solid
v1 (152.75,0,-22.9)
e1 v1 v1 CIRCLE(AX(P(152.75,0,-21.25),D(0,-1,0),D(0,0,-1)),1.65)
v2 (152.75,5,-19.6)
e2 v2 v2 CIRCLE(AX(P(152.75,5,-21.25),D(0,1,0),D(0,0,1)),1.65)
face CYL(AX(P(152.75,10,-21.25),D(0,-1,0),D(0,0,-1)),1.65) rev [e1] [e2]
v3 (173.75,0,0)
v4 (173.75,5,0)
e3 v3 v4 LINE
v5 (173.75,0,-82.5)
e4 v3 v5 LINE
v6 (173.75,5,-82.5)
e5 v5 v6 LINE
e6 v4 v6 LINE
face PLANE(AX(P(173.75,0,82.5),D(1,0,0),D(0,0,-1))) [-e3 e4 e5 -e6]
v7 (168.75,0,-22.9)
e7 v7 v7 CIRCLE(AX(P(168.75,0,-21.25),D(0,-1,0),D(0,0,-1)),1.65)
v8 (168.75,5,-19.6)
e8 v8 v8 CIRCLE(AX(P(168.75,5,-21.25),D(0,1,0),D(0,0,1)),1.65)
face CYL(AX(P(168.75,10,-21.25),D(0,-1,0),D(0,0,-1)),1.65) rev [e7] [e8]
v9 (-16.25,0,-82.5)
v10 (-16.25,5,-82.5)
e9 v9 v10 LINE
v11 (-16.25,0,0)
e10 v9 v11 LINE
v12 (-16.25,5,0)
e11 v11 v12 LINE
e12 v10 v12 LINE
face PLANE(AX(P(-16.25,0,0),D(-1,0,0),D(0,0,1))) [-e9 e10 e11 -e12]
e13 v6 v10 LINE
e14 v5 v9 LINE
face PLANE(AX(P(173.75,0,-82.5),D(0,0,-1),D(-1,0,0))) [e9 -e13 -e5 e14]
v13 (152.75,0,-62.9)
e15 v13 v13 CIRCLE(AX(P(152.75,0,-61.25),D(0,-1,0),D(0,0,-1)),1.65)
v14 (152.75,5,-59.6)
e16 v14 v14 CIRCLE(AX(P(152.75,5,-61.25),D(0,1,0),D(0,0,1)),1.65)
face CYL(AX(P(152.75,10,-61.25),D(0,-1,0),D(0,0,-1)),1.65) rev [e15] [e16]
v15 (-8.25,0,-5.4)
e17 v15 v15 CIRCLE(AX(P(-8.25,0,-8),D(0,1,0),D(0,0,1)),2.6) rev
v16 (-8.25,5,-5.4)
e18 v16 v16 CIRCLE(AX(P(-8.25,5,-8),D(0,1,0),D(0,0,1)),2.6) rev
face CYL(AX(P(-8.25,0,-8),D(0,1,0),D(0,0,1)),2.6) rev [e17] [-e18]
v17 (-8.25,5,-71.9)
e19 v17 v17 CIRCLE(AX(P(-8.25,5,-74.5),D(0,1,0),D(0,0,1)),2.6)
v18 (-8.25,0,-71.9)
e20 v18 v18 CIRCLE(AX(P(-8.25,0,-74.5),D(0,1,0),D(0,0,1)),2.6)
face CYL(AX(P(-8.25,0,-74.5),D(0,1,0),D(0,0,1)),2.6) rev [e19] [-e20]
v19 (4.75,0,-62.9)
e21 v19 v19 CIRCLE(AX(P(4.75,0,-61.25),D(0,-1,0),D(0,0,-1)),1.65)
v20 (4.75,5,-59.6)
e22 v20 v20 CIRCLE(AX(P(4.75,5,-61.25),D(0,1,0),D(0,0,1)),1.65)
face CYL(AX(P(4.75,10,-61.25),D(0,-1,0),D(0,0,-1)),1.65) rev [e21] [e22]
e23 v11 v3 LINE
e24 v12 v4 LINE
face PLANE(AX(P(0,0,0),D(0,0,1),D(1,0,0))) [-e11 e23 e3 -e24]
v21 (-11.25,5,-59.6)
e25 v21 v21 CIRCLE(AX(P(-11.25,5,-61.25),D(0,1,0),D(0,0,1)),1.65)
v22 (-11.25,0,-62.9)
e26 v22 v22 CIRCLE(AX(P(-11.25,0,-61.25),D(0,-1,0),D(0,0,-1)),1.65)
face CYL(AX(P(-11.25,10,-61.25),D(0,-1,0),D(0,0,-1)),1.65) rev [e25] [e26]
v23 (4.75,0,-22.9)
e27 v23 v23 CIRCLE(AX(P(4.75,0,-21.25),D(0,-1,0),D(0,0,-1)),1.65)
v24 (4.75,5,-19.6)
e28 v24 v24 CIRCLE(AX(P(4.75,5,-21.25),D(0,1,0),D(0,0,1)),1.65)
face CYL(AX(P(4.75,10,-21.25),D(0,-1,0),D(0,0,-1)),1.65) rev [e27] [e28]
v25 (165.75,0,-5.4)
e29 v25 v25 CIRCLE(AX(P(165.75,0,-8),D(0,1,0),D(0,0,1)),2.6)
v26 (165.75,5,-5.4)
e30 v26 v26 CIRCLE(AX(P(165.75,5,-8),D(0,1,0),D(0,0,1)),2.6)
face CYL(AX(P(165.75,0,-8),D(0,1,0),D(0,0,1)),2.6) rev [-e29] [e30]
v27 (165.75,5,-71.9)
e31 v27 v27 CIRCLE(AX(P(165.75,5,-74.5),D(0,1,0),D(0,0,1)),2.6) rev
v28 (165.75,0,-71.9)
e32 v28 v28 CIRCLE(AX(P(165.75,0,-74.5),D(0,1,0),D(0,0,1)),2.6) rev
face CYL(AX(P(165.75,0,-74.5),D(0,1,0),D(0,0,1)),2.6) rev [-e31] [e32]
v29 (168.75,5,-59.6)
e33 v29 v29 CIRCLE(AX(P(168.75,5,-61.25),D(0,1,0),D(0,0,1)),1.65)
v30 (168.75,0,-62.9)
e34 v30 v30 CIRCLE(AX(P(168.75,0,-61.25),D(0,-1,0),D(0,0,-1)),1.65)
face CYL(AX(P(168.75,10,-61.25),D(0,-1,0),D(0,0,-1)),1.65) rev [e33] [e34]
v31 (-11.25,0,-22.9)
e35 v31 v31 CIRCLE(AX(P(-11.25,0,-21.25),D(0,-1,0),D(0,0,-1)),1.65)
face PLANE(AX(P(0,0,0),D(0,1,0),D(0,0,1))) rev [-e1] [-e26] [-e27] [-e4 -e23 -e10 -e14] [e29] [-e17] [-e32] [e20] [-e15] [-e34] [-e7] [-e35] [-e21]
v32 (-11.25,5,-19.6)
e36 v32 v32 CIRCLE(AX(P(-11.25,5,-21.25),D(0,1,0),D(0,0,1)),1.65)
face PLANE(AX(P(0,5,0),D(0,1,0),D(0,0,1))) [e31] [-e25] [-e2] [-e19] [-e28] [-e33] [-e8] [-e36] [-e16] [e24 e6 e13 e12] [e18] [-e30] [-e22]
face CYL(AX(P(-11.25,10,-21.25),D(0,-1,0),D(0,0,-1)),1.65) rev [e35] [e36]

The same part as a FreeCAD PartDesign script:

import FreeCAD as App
import Part
import Sketcher
from FreeCAD import Vector


def add_polygon(sketch, points):
    """Adds a closed chain of lines whose ends are joined by coincident constraints."""
    first, n = sketch.GeometryCount, len(points)
    for a, b in zip(points, points[1:] + points[:1]):
        sketch.addGeometry(Part.LineSegment(App.Vector(*a, 0), App.Vector(*b, 0)), False)
    for i in range(n):
        sketch.addConstraint(Sketcher.Constraint("Coincident", first + i, 2, first + (i + 1) % n, 1))

doc = App.newDocument("Part")
params = doc.addObject("Spreadsheet::Sheet", "Params")
for row, (alias, value) in enumerate([
    ("sketch1_diameter", "5.2 mm"),
    ("sketch1_height", "165 mm"),
    ("sketch1_width", "347.5 mm"),
    ("pad1_length", "5 mm"),
    ("sketch2_diameter", "5.2 mm"),
    ("sketch2_width", "190 mm"),
    ("sketch2_height", "165 mm"),
    ("sketch2_width2", "347.5 mm"),
    ("pocket1_length", "5 mm"),
    ("sketch3_diameter", "5.2 mm"),
    ("pocket2_length", "5 mm"),
    ("sketch4_diameter", "3.3 mm"),
    ("pocket3_length", "10 mm"),
], start=1):
    params.set(f"A{row}", alias)
    params.set(f"B{row}", "=" + value)
    params.setAlias(f"B{row}", alias)

body = doc.addObject("PartDesign::Body", "Body")

sketch1 = body.newObject("Sketcher::SketchObject", "Sketch")
sketch1.AttachmentSupport = (doc.getObject("XZ_Plane"), [""])
sketch1.MapMode = "FlatFace"
sketch1.AttachmentOffset = App.Placement(Vector(0, 0, -5), App.Rotation())
add_polygon(sketch1, [(-173.75, -82.5), (-173.75, 82.5), (173.75, 82.5), (173.75, -82.5)])
sketch1.addGeometry(Part.Circle(Vector(-163.75, 70.5, 0), Vector(0, 0, 1), 2.6), False)
sketch1.addGeometry(Part.Circle(Vector(163.75, 70.5, 0), Vector(0, 0, 1), 2.6), False)
sketch1.addGeometry(Part.Circle(Vector(-163.75, 60.5, 0), Vector(0, 0, 1), 2.6), False)
sketch1.addGeometry(Part.Circle(Vector(163.75, 60.5, 0), Vector(0, 0, 1), 2.6), False)
sketch1.addConstraint([
    Sketcher.Constraint("Vertical", 0),
    Sketcher.Constraint("Horizontal", 1),
    Sketcher.Constraint("Vertical", 2),
    Sketcher.Constraint("Horizontal", 3),
    Sketcher.Constraint("Equal", 4, 5),
    Sketcher.Constraint("Equal", 5, 6),
    Sketcher.Constraint("Equal", 6, 7),
    Sketcher.Constraint("Symmetric", 0, 2, 2, 2, -1, 1),
    Sketcher.Constraint("Symmetric", 4, 3, 5, 3, -2),
    Sketcher.Constraint("Symmetric", 6, 3, 7, 3, -2),
    Sketcher.Constraint("Vertical", 4, 3, 6, 3),
    Sketcher.Constraint("Diameter", 4, 5.2),
    Sketcher.Constraint("DistanceY", 0, 1, 0, 2, 165.0),
    Sketcher.Constraint("DistanceX", 1, 1, 1, 2, 347.5),
    Sketcher.Constraint("DistanceY", 6, 3, 4, 3, 10.0),
    Sketcher.Constraint("DistanceX", 0, 2, 4, 3, 10.0),
    Sketcher.Constraint("DistanceY", 4, 3, 0, 2, 12.0),
])
sketch1.setExpression("Constraints[15]", "Params.sketch1_diameter")
sketch1.setExpression("Constraints[16]", "Params.sketch1_height")
sketch1.setExpression("Constraints[17]", "Params.sketch1_width")
pad1 = body.newObject("PartDesign::Pad", "Pad")
pad1.Profile = sketch1
pad1.setExpression("Length", "Params.pad1_length")

sketch2 = body.newObject("Sketcher::SketchObject", "Sketch001")
sketch2.AttachmentSupport = (doc.getObject("XZ_Plane"), [""])
sketch2.MapMode = "FlatFace"
sketch2.AttachmentOffset = App.Placement(Vector(0, 0, -5), App.Rotation())
add_polygon(sketch2, [(-173.75, -82.5), (-173.75, 82.5), (173.75, 82.5), (173.75, 0), (-16.25, 0), (-16.25, -82.5)])
sketch2.addGeometry(Part.Circle(Vector(-163.75, 60.5, 0), Vector(0, 0, 1), 2.6), False)
sketch2.addGeometry(Part.Circle(Vector(-163.75, 70.5, 0), Vector(0, 0, 1), 2.6), False)
sketch2.addGeometry(Part.Circle(Vector(163.75, 60.5, 0), Vector(0, 0, 1), 2.6), False)
sketch2.addGeometry(Part.Circle(Vector(163.75, 70.5, 0), Vector(0, 0, 1), 2.6), False)
sketch2.addConstraint([
    Sketcher.Constraint("Vertical", 0),
    Sketcher.Constraint("Horizontal", 1),
    Sketcher.Constraint("Vertical", 2),
    Sketcher.Constraint("Horizontal", 3),
    Sketcher.Constraint("Vertical", 4),
    Sketcher.Constraint("Horizontal", 5),
    Sketcher.Constraint("Equal", 6, 7),
    Sketcher.Constraint("Equal", 7, 8),
    Sketcher.Constraint("Equal", 8, 9),
    Sketcher.Constraint("Symmetric", 1, 2, 5, 2, -1, 1),
    Sketcher.Constraint("Symmetric", 6, 3, 8, 3, -2),
    Sketcher.Constraint("Symmetric", 7, 3, 9, 3, -2),
    Sketcher.Constraint("PointOnObject", 2, 2, -1),
    Sketcher.Constraint("Vertical", 6, 3, 7, 3),
    Sketcher.Constraint("Diameter", 6, 5.2),
    Sketcher.Constraint("DistanceX", 3, 2, 3, 1, 190.0),
    Sketcher.Constraint("DistanceY", 0, 1, 0, 2, 165.0),
    Sketcher.Constraint("DistanceX", 1, 1, 1, 2, 347.5),
    Sketcher.Constraint("DistanceY", 6, 3, 7, 3, 10.0),
    Sketcher.Constraint("DistanceX", 0, 2, 7, 3, 10.0),
    Sketcher.Constraint("DistanceY", 7, 3, 0, 2, 12.0),
])
sketch2.setExpression("Constraints[20]", "Params.sketch2_diameter")
sketch2.setExpression("Constraints[21]", "Params.sketch2_width")
sketch2.setExpression("Constraints[22]", "Params.sketch2_height")
sketch2.setExpression("Constraints[23]", "Params.sketch2_width2")
pocket1 = body.newObject("PartDesign::Pocket", "Pocket")
pocket1.Profile = sketch2
pocket1.setExpression("Length", "Params.pocket1_length")
pocket1.Reversed = True

sketch3 = body.newObject("Sketcher::SketchObject", "Sketch002")
sketch3.AttachmentSupport = (doc.getObject("XZ_Plane"), [""])
sketch3.MapMode = "FlatFace"
sketch3.AttachmentOffset = App.Placement(Vector(0, 0, -5), App.Rotation())
sketch3.addGeometry([
    Part.Circle(Vector(165.75, -74.5, 0), Vector(0, 0, 1), 2.6),
    Part.Circle(Vector(165.75, -8, 0), Vector(0, 0, 1), 2.6),
    Part.Circle(Vector(-8.25, -74.5, 0), Vector(0, 0, 1), 2.6),
    Part.Circle(Vector(-8.25, -8, 0), Vector(0, 0, 1), 2.6),
], False)
sketch3.addConstraint([
    Sketcher.Constraint("Equal", 0, 1),
    Sketcher.Constraint("Equal", 1, 2),
    Sketcher.Constraint("Equal", 2, 3),
    Sketcher.Constraint("Horizontal", 0, 3, 2, 3),
    Sketcher.Constraint("Horizontal", 1, 3, 3, 3),
    Sketcher.Constraint("Vertical", 0, 3, 1, 3),
    Sketcher.Constraint("Vertical", 2, 3, 3, 3),
    Sketcher.Constraint("Diameter", 0, 5.2),
    Sketcher.Constraint("DistanceY", 1, 3, -1, 1, 8.0),
    Sketcher.Constraint("DistanceX", 2, 3, 0, 3, 174.0),
    Sketcher.Constraint("DistanceY", 0, 3, -1, 1, 74.5),
    Sketcher.Constraint("DistanceX", -1, 1, 0, 3, 165.75),
])
sketch3.setExpression("Constraints[7]", "Params.sketch3_diameter")
pocket2 = body.newObject("PartDesign::Pocket", "Pocket001")
pocket2.Profile = sketch3
pocket2.setExpression("Length", "Params.pocket2_length")
pocket2.Reversed = True

sketch4 = body.newObject("Sketcher::SketchObject", "Sketch003")
sketch4.AttachmentSupport = (doc.getObject("XZ_Plane"), [""])
sketch4.MapMode = "FlatFace"
sketch4.addGeometry([
    Part.Circle(Vector(-11.25, -61.25, 0), Vector(0, 0, 1), 1.65),
    Part.Circle(Vector(4.75, -61.25, 0), Vector(0, 0, 1), 1.65),
    Part.Circle(Vector(4.75, -21.25, 0), Vector(0, 0, 1), 1.65),
    Part.Circle(Vector(152.75, -61.25, 0), Vector(0, 0, 1), 1.65),
    Part.Circle(Vector(168.75, -61.25, 0), Vector(0, 0, 1), 1.65),
    Part.Circle(Vector(152.75, -21.25, 0), Vector(0, 0, 1), 1.65),
    Part.Circle(Vector(168.75, -21.25, 0), Vector(0, 0, 1), 1.65),
    Part.Circle(Vector(-11.25, -21.25, 0), Vector(0, 0, 1), 1.65),
], False)
sketch4.addConstraint([
    Sketcher.Constraint("Equal", 0, 1),
    Sketcher.Constraint("Equal", 1, 2),
    Sketcher.Constraint("Equal", 2, 3),
    Sketcher.Constraint("Equal", 3, 4),
    Sketcher.Constraint("Equal", 4, 5),
    Sketcher.Constraint("Equal", 5, 6),
    Sketcher.Constraint("Equal", 6, 7),
    Sketcher.Constraint("Horizontal", 0, 3, 1, 3),
    Sketcher.Constraint("Horizontal", 1, 3, 3, 3),
    Sketcher.Constraint("Horizontal", 3, 3, 4, 3),
    Sketcher.Constraint("Horizontal", 2, 3, 5, 3),
    Sketcher.Constraint("Horizontal", 5, 3, 6, 3),
    Sketcher.Constraint("Horizontal", 6, 3, 7, 3),
    Sketcher.Constraint("Vertical", 1, 3, 2, 3),
    Sketcher.Constraint("Vertical", 3, 3, 5, 3),
    Sketcher.Constraint("Vertical", 4, 3, 6, 3),
    Sketcher.Constraint("Vertical", 0, 3, 7, 3),
    Sketcher.Constraint("Diameter", 0, 3.3),
    Sketcher.Constraint("DistanceX", 0, 3, 1, 3, 16.0),
    Sketcher.Constraint("DistanceY", 1, 3, 2, 3, 40.0),
    Sketcher.Constraint("DistanceX", 1, 3, 3, 3, 148.0),
    Sketcher.Constraint("DistanceX", 3, 3, 4, 3, 16.0),
    Sketcher.Constraint("DistanceX", 0, 3, -1, 1, 11.25),
    Sketcher.Constraint("DistanceY", 0, 3, -1, 1, 61.25),
])
sketch4.setExpression("Constraints[17]", "Params.sketch4_diameter")
pocket3 = body.newObject("PartDesign::Pocket", "Pocket002")
pocket3.Profile = sketch4
pocket3.setExpression("Length", "Params.pocket3_length")

doc.recompute()
